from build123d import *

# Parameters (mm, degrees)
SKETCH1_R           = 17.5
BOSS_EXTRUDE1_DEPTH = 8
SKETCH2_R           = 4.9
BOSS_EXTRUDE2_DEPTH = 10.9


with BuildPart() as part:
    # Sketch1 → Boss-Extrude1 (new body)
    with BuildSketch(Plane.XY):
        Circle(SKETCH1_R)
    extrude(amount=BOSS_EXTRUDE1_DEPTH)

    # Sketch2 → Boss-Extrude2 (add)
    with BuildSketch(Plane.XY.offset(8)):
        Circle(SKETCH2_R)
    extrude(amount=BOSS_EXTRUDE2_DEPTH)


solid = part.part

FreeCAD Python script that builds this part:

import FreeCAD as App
import Part
import Sketcher
Q = App.Units.Quantity

doc = App.newDocument("Part")
body = doc.addObject("PartDesign::Body", "Body")

# Sketch on XY plane
sketch1 = doc.addObject("Sketcher::SketchObject", "Sketch")
body.addObject(sketch1)
sketch1.AttachmentSupport = (doc.XY_Plane, [""])
sketch1.MapMode = "FlatFace"
sketch1.addGeometry(Part.Circle(App.Vector(0, 0, 0), App.Vector(0, 0, 1), 18), False)
sketch1.addConstraint([
    Sketcher.Constraint("Coincident", 0, 3, -1, 1),
    Sketcher.Constraint("Diameter", 0, Q("35 mm")),
])
pad1 = doc.addObject("PartDesign::Pad", "Pad")
body.addObject(pad1)
pad1.Profile = sketch1
pad1.Length = 8

# Sketch on XY plane
sketch2 = doc.addObject("Sketcher::SketchObject", "Sketch001")
body.addObject(sketch2)
sketch2.AttachmentSupport = (doc.XY_Plane, [""])
sketch2.MapMode = "FlatFace"
sketch2.AttachmentOffset = App.Placement(App.Vector(0, 0, 8), App.Rotation())
sketch2.addGeometry(Part.Circle(App.Vector(0, 0, 0), App.Vector(0, 0, 1), 4.9), False)
sketch2.addConstraint([
    Sketcher.Constraint("Coincident", 0, 3, -1, 1),
    Sketcher.Constraint("Diameter", 0, Q("9.8 mm")),
])
pad2 = doc.addObject("PartDesign::Pad", "Pad001")
body.addObject(pad2)
pad2.Profile = sketch2
pad2.Length = 10.9

doc.recompute()
